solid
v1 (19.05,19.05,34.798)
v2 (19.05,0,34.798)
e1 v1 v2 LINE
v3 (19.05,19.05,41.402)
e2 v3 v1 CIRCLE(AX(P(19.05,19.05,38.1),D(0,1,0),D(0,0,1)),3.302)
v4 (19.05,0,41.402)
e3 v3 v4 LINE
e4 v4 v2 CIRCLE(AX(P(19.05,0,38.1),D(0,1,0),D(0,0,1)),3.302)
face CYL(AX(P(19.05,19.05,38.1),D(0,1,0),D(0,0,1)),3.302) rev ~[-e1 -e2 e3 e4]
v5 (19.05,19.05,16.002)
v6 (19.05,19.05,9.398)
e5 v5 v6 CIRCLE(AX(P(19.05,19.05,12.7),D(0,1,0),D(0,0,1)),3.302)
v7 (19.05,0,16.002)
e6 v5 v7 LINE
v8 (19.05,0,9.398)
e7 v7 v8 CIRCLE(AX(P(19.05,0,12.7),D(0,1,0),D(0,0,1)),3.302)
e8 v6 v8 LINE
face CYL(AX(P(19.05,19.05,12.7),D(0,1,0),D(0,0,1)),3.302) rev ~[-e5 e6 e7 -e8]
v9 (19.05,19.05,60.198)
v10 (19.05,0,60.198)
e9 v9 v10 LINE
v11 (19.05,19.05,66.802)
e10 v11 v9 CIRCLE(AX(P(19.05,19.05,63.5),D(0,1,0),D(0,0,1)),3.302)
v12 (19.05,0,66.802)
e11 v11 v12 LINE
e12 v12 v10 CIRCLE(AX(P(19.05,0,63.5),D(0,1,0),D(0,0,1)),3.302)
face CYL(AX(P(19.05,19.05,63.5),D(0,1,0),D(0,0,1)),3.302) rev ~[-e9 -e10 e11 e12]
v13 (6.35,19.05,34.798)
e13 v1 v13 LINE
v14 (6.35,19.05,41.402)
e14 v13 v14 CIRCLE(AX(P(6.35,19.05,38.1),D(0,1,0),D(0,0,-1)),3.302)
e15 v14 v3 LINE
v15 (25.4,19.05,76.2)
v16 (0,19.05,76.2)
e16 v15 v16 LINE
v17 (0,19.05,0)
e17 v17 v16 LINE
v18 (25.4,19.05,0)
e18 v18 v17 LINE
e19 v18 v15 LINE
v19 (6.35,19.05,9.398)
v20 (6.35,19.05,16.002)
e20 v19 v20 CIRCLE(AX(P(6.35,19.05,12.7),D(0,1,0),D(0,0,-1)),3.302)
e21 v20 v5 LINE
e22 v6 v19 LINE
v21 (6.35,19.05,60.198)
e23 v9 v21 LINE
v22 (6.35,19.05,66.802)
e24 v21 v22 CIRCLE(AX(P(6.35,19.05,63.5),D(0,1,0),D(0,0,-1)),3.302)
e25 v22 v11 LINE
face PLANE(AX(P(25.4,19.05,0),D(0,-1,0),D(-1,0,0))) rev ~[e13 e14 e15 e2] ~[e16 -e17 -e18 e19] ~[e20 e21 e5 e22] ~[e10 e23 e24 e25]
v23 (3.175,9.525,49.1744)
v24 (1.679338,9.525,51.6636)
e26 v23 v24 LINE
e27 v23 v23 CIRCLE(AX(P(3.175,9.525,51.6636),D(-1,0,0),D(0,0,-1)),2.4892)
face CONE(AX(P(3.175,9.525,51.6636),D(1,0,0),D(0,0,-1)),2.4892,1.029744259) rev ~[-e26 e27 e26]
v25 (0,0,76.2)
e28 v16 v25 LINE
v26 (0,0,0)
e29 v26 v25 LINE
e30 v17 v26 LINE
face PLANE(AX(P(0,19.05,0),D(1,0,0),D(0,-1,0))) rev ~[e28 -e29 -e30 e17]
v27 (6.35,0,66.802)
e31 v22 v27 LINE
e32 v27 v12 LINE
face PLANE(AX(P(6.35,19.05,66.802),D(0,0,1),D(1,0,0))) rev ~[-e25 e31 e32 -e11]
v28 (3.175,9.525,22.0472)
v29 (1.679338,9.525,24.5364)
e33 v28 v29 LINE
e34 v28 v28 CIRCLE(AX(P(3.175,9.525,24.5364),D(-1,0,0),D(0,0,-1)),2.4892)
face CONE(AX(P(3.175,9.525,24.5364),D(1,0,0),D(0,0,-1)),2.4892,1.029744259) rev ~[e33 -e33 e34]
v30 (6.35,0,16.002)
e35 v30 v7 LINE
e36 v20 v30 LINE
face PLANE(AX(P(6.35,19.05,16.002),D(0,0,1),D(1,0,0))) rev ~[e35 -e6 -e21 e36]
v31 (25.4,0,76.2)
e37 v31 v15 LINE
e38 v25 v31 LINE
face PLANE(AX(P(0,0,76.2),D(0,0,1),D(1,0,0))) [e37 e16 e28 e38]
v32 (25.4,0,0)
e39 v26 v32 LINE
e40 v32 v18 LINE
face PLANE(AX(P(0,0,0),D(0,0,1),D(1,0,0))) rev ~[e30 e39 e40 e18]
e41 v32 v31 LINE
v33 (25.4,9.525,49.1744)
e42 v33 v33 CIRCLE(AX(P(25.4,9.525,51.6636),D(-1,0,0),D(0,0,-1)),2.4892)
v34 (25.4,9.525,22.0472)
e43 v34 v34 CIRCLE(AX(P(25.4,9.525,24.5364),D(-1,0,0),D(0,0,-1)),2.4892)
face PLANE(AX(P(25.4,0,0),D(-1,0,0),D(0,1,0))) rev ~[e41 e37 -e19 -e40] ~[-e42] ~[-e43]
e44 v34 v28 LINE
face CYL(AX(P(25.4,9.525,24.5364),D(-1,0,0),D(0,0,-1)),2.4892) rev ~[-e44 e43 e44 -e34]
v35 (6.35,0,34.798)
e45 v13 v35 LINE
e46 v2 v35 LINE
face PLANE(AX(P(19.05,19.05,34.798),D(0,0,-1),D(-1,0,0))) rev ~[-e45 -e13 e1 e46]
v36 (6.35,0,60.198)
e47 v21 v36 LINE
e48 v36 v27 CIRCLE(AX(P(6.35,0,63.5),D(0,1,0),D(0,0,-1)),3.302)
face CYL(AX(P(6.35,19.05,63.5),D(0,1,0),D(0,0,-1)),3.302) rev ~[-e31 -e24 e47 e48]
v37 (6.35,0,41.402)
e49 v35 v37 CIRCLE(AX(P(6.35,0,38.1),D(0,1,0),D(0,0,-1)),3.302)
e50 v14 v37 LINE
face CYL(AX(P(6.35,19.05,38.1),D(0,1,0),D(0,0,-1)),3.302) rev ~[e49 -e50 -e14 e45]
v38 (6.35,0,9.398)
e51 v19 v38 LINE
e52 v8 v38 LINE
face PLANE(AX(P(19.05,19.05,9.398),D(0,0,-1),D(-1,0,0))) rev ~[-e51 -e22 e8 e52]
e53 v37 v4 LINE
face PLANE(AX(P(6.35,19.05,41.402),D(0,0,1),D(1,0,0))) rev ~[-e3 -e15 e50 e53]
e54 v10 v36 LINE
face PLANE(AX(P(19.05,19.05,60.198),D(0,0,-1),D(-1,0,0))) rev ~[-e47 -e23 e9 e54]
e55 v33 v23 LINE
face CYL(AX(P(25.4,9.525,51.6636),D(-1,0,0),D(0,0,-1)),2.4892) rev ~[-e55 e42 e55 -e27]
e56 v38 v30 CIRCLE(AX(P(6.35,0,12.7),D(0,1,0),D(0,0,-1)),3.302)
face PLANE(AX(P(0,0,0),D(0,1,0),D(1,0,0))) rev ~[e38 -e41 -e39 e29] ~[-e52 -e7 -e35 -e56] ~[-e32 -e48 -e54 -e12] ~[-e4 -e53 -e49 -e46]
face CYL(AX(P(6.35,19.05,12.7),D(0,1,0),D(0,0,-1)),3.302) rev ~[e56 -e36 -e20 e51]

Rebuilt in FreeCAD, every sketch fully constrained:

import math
import FreeCAD as App
import Part
import Sketcher
from FreeCAD import Vector
Q = App.Units.Quantity

doc = App.newDocument("Part")
body = doc.addObject("PartDesign::Body", "Body")

sketch1 = doc.addObject("Sketcher::SketchObject", "Sketch")
body.addObject(sketch1)
sketch1.AttachmentSupport = (doc.XY_Plane, [""])
sketch1.MapMode = "FlatFace"
sketch1.addGeometry(Part.LineSegment(Vector(0, 19, 0), Vector(0, 0, 0)), False)
sketch1.addGeometry(Part.LineSegment(Vector(0, 0, 0), Vector(25, 0, 0)), False)
sketch1.addGeometry(Part.LineSegment(Vector(25, 0, 0), Vector(25, 19, 0)), False)
sketch1.addGeometry(Part.LineSegment(Vector(25, 19, 0), Vector(0, 19, 0)), False)
sketch1.addConstraint(Sketcher.Constraint("Coincident", 0, 2, 1, 1))
sketch1.addConstraint(Sketcher.Constraint("Coincident", 1, 2, 2, 1))
sketch1.addConstraint(Sketcher.Constraint("Coincident", 2, 2, 3, 1))
sketch1.addConstraint(Sketcher.Constraint("Coincident", 3, 2, 0, 1))
sketch1.addConstraint(Sketcher.Constraint("Vertical", 0))
sketch1.addConstraint(Sketcher.Constraint("Horizontal", 1))
sketch1.addConstraint(Sketcher.Constraint("Vertical", 2))
sketch1.addConstraint(Sketcher.Constraint("Horizontal", 3))
sketch1.addConstraint(Sketcher.Constraint("Coincident", 0, 2, -1, 1))
sketch1.addConstraint(Sketcher.Constraint("DistanceX", 1, 1, 1, 2, Q("1 in")))
sketch1.addConstraint(Sketcher.Constraint("DistanceY", 0, 2, 0, 1, Q("0.75 in")))
pad1 = doc.addObject("PartDesign::Pad", "Pad")
body.addObject(pad1)
pad1.Profile = sketch1
pad1.Length = Q("3 in")

sketch2 = doc.addObject("Sketcher::SketchObject", "Sketch001")
body.addObject(sketch2)
sketch2.AttachmentSupport = (doc.YZ_Plane, [""])
sketch2.MapMode = "FlatFace"
sketch2.AttachmentOffset = App.Placement(Vector(0, 0, 1 * 25.4), App.Rotation())
sketch2.addGeometry(Part.Circle(Vector(9.5, 51.7, 0), Vector(0, 0, 1), 2.5), False)
sketch2.addGeometry(Part.Circle(Vector(9.5, 24.5, 0), Vector(0, 0, 1), 2.5), False)
sketch2.addConstraint(Sketcher.Constraint("Equal", 0, 1))
sketch2.addConstraint(Sketcher.Constraint("Vertical", 0, 3, 1, 3))
sketch2.addConstraint(Sketcher.Constraint("Diameter", 0, Q("0.196 in")))
sketch2.addConstraint(Sketcher.Constraint("DistanceX", -1, 1, 0, 3, Q("0.375 in")))
sketch2.addConstraint(Sketcher.Constraint("DistanceY", -1, 1, 0, 3, Q("2.034 in")))
sketch2.addConstraint(Sketcher.Constraint("DistanceY", -1, 1, 1, 3, Q("0.966 in")))
doc.recompute()
hole = doc.addObject("PartDesign::Hole", "Hole")
body.addObject(hole)
hole.Profile = sketch2
hole.ThreadType = "None"
hole.Diameter = Q("0.196 in")
hole.DepthType = "Dimension"
hole.Depth = Q("0.875 in")
hole.DrillPoint = "Angled"
hole.DrillPointAngle = 118

sketch3 = doc.addObject("Sketcher::SketchObject", "Sketch002")
body.addObject(sketch3)
sketch3.AttachmentSupport = (doc.XZ_Plane, [""])
sketch3.MapMode = "FlatFace"
sketch3.AttachmentOffset = App.Placement(Vector(0, 0, -0.75 * 25.4), App.Rotation())
sketch3.addGeometry(Part.ArcOfCircle(Part.Circle(Vector(6.3, 12.7, 0), Vector(0, 0, 1), 3.3), math.radians(90), math.radians(270)), False)
sketch3.addGeometry(Part.LineSegment(Vector(6.3, 16, 0), Vector(19.1, 16, 0)), False)
sketch3.addGeometry(Part.ArcOfCircle(Part.Circle(Vector(19.1, 12.7, 0), Vector(0, 0, 1), 3.3), math.radians(-90), math.radians(90)), False)
sketch3.addGeometry(Part.LineSegment(Vector(19.1, 9.4, 0), Vector(6.3, 9.4, 0)), False)
sketch3.addGeometry(Part.ArcOfCircle(Part.Circle(Vector(6.3, 63.5, 0), Vector(0, 0, 1), 3.3), math.radians(90), math.radians(270)), False)
sketch3.addGeometry(Part.LineSegment(Vector(6.3, 66.8, 0), Vector(19.1, 66.8, 0)), False)
sketch3.addGeometry(Part.ArcOfCircle(Part.Circle(Vector(19.1, 63.5, 0), Vector(0, 0, 1), 3.3), math.radians(-90), math.radians(90)), False)
sketch3.addGeometry(Part.LineSegment(Vector(19.1, 60.2, 0), Vector(6.3, 60.2, 0)), False)
sketch3.addGeometry(Part.ArcOfCircle(Part.Circle(Vector(6.3, 38.1, 0), Vector(0, 0, 1), 3.3), math.radians(90), math.radians(270)), False)
sketch3.addGeometry(Part.LineSegment(Vector(6.3, 41.4, 0), Vector(19.1, 41.4, 0)), False)
sketch3.addGeometry(Part.ArcOfCircle(Part.Circle(Vector(19.1, 38.1, 0), Vector(0, 0, 1), 3.3), math.radians(-90), math.radians(90)), False)
sketch3.addGeometry(Part.LineSegment(Vector(19.1, 34.8, 0), Vector(6.3, 34.8, 0)), False)
sketch3.addConstraint(Sketcher.Constraint("Tangent", 0, 1, 1, 1))
sketch3.addConstraint(Sketcher.Constraint("Tangent", 1, 2, 2, 2))
sketch3.addConstraint(Sketcher.Constraint("Tangent", 2, 1, 3, 1))
sketch3.addConstraint(Sketcher.Constraint("Tangent", 3, 2, 0, 2))
sketch3.addConstraint(Sketcher.Constraint("Tangent", 4, 1, 5, 1))
sketch3.addConstraint(Sketcher.Constraint("Tangent", 5, 2, 6, 2))
sketch3.addConstraint(Sketcher.Constraint("Tangent", 6, 1, 7, 1))
sketch3.addConstraint(Sketcher.Constraint("Tangent", 7, 2, 4, 2))
sketch3.addConstraint(Sketcher.Constraint("Tangent", 8, 1, 9, 1))
sketch3.addConstraint(Sketcher.Constraint("Tangent", 9, 2, 10, 2))
sketch3.addConstraint(Sketcher.Constraint("Tangent", 10, 1, 11, 1))
sketch3.addConstraint(Sketcher.Constraint("Tangent", 11, 2, 8, 2))
sketch3.addConstraint(Sketcher.Constraint("Horizontal", 1))
sketch3.addConstraint(Sketcher.Constraint("Horizontal", 3))
sketch3.addConstraint(Sketcher.Constraint("Horizontal", 5))
sketch3.addConstraint(Sketcher.Constraint("Horizontal", 7))
sketch3.addConstraint(Sketcher.Constraint("Horizontal", 9))
sketch3.addConstraint(Sketcher.Constraint("Horizontal", 11))
sketch3.addConstraint(Sketcher.Constraint("Equal", 2, 4))
sketch3.addConstraint(Sketcher.Constraint("Equal", 6, 8))
sketch3.addConstraint(Sketcher.Constraint("Vertical", 0, 3, 4, 3))
sketch3.addConstraint(Sketcher.Constraint("Vertical", 2, 3, 6, 3))
sketch3.addConstraint(Sketcher.Constraint("Vertical", 4, 3, 8, 3))
sketch3.addConstraint(Sketcher.Constraint("Vertical", 6, 3, 10, 3))
sketch3.addConstraint(Sketcher.Constraint("Radius", 0, Q("0.13 in")))
sketch3.addConstraint(Sketcher.Constraint("DistanceX", 1, 1, 1, 2, Q("0.5 in")))
sketch3.addConstraint(Sketcher.Constraint("DistanceY", 8, 3, 4, 3, Q("1 in")))
sketch3.addConstraint(Sketcher.Constraint("DistanceY", 0, 3, 8, 3, Q("1 in")))
sketch3.addConstraint(Sketcher.Constraint("DistanceY", -1, 1, 0, 3, Q("0.5 in")))
sketch3.addConstraint(Sketcher.Constraint("DistanceX", -1, 1, 0, 3, Q("0.25 in")))
pocket1 = doc.addObject("PartDesign::Pocket", "Pocket")
body.addObject(pocket1)
pocket1.Profile = sketch3
pocket1.Length = Q("4 in")
pocket1.Reversed = True

doc.recompute()
